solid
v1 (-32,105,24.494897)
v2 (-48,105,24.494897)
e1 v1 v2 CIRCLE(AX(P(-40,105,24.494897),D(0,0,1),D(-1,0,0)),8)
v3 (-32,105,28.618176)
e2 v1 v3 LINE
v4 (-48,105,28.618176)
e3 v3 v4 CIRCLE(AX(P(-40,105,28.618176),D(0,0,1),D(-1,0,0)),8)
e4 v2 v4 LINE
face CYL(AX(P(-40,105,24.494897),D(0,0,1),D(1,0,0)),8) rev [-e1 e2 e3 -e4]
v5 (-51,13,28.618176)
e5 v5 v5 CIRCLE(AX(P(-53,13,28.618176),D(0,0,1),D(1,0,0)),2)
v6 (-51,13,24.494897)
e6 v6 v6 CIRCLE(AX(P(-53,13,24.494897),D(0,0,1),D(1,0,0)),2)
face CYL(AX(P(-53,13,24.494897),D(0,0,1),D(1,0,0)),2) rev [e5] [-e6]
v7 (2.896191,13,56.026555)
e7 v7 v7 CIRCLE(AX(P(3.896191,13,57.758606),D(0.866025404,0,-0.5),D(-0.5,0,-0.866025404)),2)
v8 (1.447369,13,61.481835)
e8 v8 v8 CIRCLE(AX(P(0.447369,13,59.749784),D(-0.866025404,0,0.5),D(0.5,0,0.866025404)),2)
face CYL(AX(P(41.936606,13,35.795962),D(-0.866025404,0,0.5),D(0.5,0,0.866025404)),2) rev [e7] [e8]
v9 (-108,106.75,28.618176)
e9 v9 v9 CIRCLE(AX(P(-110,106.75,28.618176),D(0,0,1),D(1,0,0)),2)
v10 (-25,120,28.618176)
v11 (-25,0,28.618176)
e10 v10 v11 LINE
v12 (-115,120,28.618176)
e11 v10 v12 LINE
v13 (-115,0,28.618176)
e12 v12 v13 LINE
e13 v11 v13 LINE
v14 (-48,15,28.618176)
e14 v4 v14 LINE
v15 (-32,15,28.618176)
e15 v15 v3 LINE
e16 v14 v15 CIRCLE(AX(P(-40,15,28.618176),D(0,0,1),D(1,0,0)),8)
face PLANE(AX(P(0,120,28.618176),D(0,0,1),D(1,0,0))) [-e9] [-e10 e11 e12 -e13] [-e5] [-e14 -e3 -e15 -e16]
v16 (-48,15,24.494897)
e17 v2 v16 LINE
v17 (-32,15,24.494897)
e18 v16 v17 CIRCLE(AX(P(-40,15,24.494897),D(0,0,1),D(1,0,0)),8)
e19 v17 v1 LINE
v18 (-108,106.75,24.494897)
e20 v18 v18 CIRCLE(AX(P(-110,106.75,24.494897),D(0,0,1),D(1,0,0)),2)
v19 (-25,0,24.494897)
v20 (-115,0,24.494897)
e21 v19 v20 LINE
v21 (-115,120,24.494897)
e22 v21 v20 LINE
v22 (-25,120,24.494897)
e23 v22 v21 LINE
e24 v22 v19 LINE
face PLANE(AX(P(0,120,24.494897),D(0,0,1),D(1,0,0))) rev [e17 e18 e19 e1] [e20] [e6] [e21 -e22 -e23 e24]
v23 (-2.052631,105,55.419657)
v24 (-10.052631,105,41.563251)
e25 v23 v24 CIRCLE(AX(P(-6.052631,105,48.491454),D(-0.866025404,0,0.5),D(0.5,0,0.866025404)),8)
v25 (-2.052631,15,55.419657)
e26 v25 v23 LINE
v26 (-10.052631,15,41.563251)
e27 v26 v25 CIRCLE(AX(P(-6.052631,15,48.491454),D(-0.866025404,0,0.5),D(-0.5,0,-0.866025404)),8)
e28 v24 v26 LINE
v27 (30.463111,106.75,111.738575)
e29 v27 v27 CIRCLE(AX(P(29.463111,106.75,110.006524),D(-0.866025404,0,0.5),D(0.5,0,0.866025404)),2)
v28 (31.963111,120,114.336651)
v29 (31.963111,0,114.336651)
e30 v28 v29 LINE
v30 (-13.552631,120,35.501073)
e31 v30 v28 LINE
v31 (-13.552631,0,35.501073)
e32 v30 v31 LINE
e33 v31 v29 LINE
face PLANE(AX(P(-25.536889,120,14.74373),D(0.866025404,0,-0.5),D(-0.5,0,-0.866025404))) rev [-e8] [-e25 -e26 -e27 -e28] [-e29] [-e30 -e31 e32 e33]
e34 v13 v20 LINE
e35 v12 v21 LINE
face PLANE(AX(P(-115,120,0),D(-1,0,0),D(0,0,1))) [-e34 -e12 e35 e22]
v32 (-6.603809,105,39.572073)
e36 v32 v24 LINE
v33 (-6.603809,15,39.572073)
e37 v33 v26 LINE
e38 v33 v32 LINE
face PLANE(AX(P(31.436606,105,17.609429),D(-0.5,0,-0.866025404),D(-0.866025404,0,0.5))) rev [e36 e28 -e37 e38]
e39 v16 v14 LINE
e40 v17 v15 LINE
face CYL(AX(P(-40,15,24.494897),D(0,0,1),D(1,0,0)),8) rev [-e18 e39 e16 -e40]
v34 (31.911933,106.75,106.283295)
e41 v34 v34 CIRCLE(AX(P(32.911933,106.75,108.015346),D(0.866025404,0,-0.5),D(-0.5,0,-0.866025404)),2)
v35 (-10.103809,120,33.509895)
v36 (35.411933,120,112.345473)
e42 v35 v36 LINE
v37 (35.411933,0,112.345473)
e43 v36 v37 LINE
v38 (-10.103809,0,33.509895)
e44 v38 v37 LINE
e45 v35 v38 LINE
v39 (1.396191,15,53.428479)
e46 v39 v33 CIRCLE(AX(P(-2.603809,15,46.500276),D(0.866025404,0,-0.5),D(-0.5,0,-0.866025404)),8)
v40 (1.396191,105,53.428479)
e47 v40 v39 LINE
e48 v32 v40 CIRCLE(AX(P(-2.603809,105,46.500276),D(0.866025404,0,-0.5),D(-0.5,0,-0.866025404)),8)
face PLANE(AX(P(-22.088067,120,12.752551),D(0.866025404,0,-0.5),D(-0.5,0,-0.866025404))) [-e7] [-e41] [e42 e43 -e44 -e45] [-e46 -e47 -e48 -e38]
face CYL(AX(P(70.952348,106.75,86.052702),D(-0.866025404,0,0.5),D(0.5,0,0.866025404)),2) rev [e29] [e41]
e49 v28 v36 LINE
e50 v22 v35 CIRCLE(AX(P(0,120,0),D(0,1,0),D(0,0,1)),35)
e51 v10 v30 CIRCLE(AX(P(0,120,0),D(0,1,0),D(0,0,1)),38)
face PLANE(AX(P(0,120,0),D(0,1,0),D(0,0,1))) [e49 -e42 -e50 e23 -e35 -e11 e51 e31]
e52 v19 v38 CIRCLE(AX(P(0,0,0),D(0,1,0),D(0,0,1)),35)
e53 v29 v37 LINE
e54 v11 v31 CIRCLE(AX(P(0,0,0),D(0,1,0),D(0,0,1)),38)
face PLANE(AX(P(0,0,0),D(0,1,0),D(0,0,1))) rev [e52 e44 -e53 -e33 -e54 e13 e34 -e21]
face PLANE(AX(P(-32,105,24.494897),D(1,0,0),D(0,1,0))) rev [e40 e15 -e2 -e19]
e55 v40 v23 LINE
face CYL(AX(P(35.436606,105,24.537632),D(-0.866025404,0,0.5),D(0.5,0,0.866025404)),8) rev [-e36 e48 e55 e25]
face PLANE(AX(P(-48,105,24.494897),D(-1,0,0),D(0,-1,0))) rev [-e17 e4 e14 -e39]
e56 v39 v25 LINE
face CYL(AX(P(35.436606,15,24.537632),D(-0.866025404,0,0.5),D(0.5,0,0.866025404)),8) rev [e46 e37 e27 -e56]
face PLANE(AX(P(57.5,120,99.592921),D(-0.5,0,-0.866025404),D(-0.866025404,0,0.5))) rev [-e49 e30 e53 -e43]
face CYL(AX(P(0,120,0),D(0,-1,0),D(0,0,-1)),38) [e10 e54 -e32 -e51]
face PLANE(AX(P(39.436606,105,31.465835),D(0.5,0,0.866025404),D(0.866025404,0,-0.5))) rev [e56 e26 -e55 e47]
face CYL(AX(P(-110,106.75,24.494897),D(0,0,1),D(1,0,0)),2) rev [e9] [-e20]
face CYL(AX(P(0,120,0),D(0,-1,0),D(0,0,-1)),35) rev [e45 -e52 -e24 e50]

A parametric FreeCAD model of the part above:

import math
import FreeCAD as App
import Part
import Sketcher
Q = App.Units.Quantity

doc = App.newDocument("Part")
params = doc.addObject("Spreadsheet::Sheet", "Params")
for row, (alias, value) in enumerate([
    ("sketch1_radius", "38 mm"),
    ("sketch1_radius2", "35 mm"),
    ("sketch1_width", "90 mm"),
    ("pad1_length", "120 mm"),
    ("sketch2_radius", "8 mm"),
    ("sketch2_height", "90 mm"),
    ("sketch3_radius", "8 mm"),
    ("sketch3_height", "90 mm"),
    ("sketch4_diameter", "4 mm"),
    ("sketch5_diameter", "4 mm"),
    ("sketch6_diameter", "4 mm"),
    ("sketch7_diameter", "4 mm"),
], start=1):
    params.set(f"A{row}", alias)
    params.set(f"B{row}", "=" + value)
    params.setAlias(f"B{row}", alias)

body = doc.addObject("PartDesign::Body", "Body")

# Sketch on XZ plane
sketch1 = body.newObject("Sketcher::SketchObject", "Sketch")
sketch1.AttachmentSupport = (doc.getObject("XZ_Plane"), [""])
sketch1.MapMode = "FlatFace"
sketch1.addGeometry(Part.LineSegment(App.Vector(-115, 24.5, 0), App.Vector(-115, 28.6, 0)), False)
sketch1.addGeometry(Part.LineSegment(App.Vector(-115, 28.6, 0), App.Vector(-25, 28.6, 0)), False)
sketch1.addGeometry(Part.ArcOfCircle(Part.Circle(App.Vector(0, 0, 0), App.Vector(0, 0, 1), 38), math.radians(111), math.radians(131)), False)
sketch1.addGeometry(Part.LineSegment(App.Vector(-13.6, 35.5, 0), App.Vector(32, 114.3, 0)), False)
sketch1.addGeometry(Part.LineSegment(App.Vector(32, 114.3, 0), App.Vector(35.4, 112.3, 0)), False)
sketch1.addGeometry(Part.LineSegment(App.Vector(35.4, 112.3, 0), App.Vector(-8, 37.1, 0)), False)
sketch1.addGeometry(Part.LineSegment(App.Vector(-8, 37.1, 0), App.Vector(-10.1, 33.5, 0)), False)
sketch1.addGeometry(Part.ArcOfCircle(Part.Circle(App.Vector(0, 0, 0), App.Vector(0, 0, 1), 35), math.radians(107), math.radians(136)), False)
sketch1.addGeometry(Part.LineSegment(App.Vector(-25, 24.5, 0), App.Vector(-115, 24.5, 0)), False)
sketch1.addConstraint(Sketcher.Constraint("Coincident", 0, 2, 1, 1))
sketch1.addConstraint(Sketcher.Constraint("Coincident", 1, 2, 2, 2))
sketch1.addConstraint(Sketcher.Constraint("Coincident", 2, 1, 3, 1))
sketch1.addConstraint(Sketcher.Constraint("Coincident", 3, 2, 4, 1))
sketch1.addConstraint(Sketcher.Constraint("Coincident", 4, 2, 5, 1))
sketch1.addConstraint(Sketcher.Constraint("Coincident", 5, 2, 6, 1))
sketch1.addConstraint(Sketcher.Constraint("Coincident", 6, 2, 7, 1))
sketch1.addConstraint(Sketcher.Constraint("Coincident", 7, 2, 8, 1))
sketch1.addConstraint(Sketcher.Constraint("Coincident", 8, 2, 0, 1))
sketch1.addConstraint(Sketcher.Constraint("Vertical", 0))
sketch1.addConstraint(Sketcher.Constraint("Horizontal", 1))
sketch1.addConstraint(Sketcher.Constraint("Horizontal", 8))
sketch1.addConstraint(Sketcher.Constraint("Coincident", 2, 3, -1, 1))
sketch1.addConstraint(Sketcher.Constraint("Coincident", 7, 3, -1, 1))
sketch1.addConstraint(Sketcher.Constraint("Perpendicular", 3, 4))
sketch1.addConstraint(Sketcher.Constraint("Perpendicular", 4, 5))
sketch1.addConstraint(Sketcher.Constraint("Parallel", 5, 6))
sketch1.addConstraint(Sketcher.Constraint("Vertical", 1, 2, 7, 2))
sketch1.addConstraint(Sketcher.Constraint("Radius", 2, Q("38 mm")))
sketch1.addConstraint(Sketcher.Constraint("Radius", 7, Q("35 mm")))
sketch1.addConstraint(Sketcher.Constraint("DistanceX", 1, 1, 1, 2, Q("90 mm")))
sketch1.addConstraint(Sketcher.Constraint("Angle", 3, Q("60 deg")))
sketch1.addConstraint(Sketcher.Constraint("DistanceX", 0, 2, -1, 1, Q("115 mm")))
sketch1.addConstraint(Sketcher.Constraint("DistanceY", 2, 1, 4, 2, Q("76.8444 mm")))
sketch1.addConstraint(Sketcher.Constraint("DistanceY", 1, 2, 5, 2, Q("8.529402 mm")))
sketch1.addConstraint(Sketcher.Constraint("Distance", 5, Q("86.83105 mm")))
sketch1.addConstraint(Sketcher.Constraint("DistanceX", -1, 1, 3, 2, Q("31.963111 mm")))
sketch1.setExpression("Constraints[18]", "Params.sketch1_radius")
sketch1.setExpression("Constraints[19]", "Params.sketch1_radius2")
sketch1.setExpression("Constraints[20]", "Params.sketch1_width")
pad1 = body.newObject("PartDesign::Pad", "Pad")
pad1.Profile = sketch1
pad1.setExpression("Length", "Params.pad1_length")
pad1.Reversed = True

# Sketch on XY plane
sketch2 = body.newObject("Sketcher::SketchObject", "Sketch001")
sketch2.AttachmentSupport = (doc.getObject("XY_Plane"), [""])
sketch2.MapMode = "FlatFace"
sketch2.AttachmentOffset = App.Placement(App.Vector(0, 0, 28.618176), App.Rotation())
sketch2.addGeometry(Part.LineSegment(App.Vector(-48, 105, 0), App.Vector(-48, 15, 0)), False)
sketch2.addGeometry(Part.ArcOfCircle(Part.Circle(App.Vector(-40, 15, 0), App.Vector(0, 0, 1), 8), math.radians(180), math.radians(360)), False)
sketch2.addGeometry(Part.LineSegment(App.Vector(-32, 15, 0), App.Vector(-32, 105, 0)), False)
sketch2.addGeometry(Part.ArcOfCircle(Part.Circle(App.Vector(-40, 105, 0), App.Vector(0, 0, 1), 8), math.radians(0), math.radians(180)), False)
sketch2.addConstraint(Sketcher.Constraint("Tangent", 0, 2, 1, 1))
sketch2.addConstraint(Sketcher.Constraint("Tangent", 1, 2, 2, 1))
sketch2.addConstraint(Sketcher.Constraint("Tangent", 2, 2, 3, 1))
sketch2.addConstraint(Sketcher.Constraint("Tangent", 3, 2, 0, 1))
sketch2.addConstraint(Sketcher.Constraint("Vertical", 0))
sketch2.addConstraint(Sketcher.Constraint("Vertical", 2))
sketch2.addConstraint(Sketcher.Constraint("Radius", 1, Q("8 mm")))
sketch2.addConstraint(Sketcher.Constraint("DistanceY", 0, 2, 0, 1, Q("90 mm")))
sketch2.addConstraint(Sketcher.Constraint("DistanceX", 1, 3, -1, 1, Q("40 mm")))
sketch2.addConstraint(Sketcher.Constraint("DistanceY", -1, 1, 1, 3, Q("15 mm")))
sketch2.setExpression("Constraints[6]", "Params.sketch2_radius")
sketch2.setExpression("Constraints[7]", "Params.sketch2_height")
pocket1 = body.newObject("PartDesign::Pocket", "Pocket")
pocket1.Profile = sketch2
pocket1.Type = "ThroughAll"

# Sketch on an angled plane
sketch3 = body.newObject("Sketcher::SketchObject", "Sketch002")
sketch3.Placement = App.Placement(App.Vector(-25.536889, 0, 14.74373), App.Rotation(App.Vector(0.5, 0, 0.866025404), App.Vector(0, 1, 0), App.Vector(-0.866025404, 0, 0.5), "ZXY"))
sketch3.addGeometry(Part.LineSegment(App.Vector(47, 15, 0), App.Vector(47, 105, 0)), False)
sketch3.addGeometry(Part.ArcOfCircle(Part.Circle(App.Vector(39, 105, 0), App.Vector(0, 0, 1), 8), math.radians(0), math.radians(180)), False)
sketch3.addGeometry(Part.LineSegment(App.Vector(31, 105, 0), App.Vector(31, 15, 0)), False)
sketch3.addGeometry(Part.ArcOfCircle(Part.Circle(App.Vector(39, 15, 0), App.Vector(0, 0, 1), 8), math.radians(180), math.radians(360)), False)
sketch3.addConstraint(Sketcher.Constraint("Tangent", 0, 2, 1, 1))
sketch3.addConstraint(Sketcher.Constraint("Tangent", 1, 2, 2, 1))
sketch3.addConstraint(Sketcher.Constraint("Tangent", 2, 2, 3, 1))
sketch3.addConstraint(Sketcher.Constraint("Tangent", 3, 2, 0, 1))
sketch3.addConstraint(Sketcher.Constraint("Vertical", 0))
sketch3.addConstraint(Sketcher.Constraint("Vertical", 2))
sketch3.addConstraint(Sketcher.Constraint("Radius", 1, Q("8 mm")))
sketch3.addConstraint(Sketcher.Constraint("DistanceY", 0, 1, 0, 2, Q("90 mm")))
sketch3.addConstraint(Sketcher.Constraint("DistanceY", -1, 1, 1, 3, Q("105 mm")))
sketch3.addConstraint(Sketcher.Constraint("DistanceX", -1, 1, 1, 3, Q("38.968516 mm")))
sketch3.setExpression("Constraints[6]", "Params.sketch3_radius")
sketch3.setExpression("Constraints[7]", "Params.sketch3_height")
pocket2 = body.newObject("PartDesign::Pocket", "Pocket001")
pocket2.Profile = sketch3
pocket2.Type = "ThroughAll"

# Sketch on XY plane
sketch4 = body.newObject("Sketcher::SketchObject", "Sketch003")
sketch4.AttachmentSupport = (doc.getObject("XY_Plane"), [""])
sketch4.MapMode = "FlatFace"
sketch4.AttachmentOffset = App.Placement(App.Vector(0, 0, 28.618176), App.Rotation())
sketch4.addGeometry(Part.Circle(App.Vector(-110, 106.8, 0), App.Vector(0, 0, 1), 2), False)
sketch4.addConstraint(Sketcher.Constraint("Diameter", 0, Q("4 mm")))
sketch4.addConstraint(Sketcher.Constraint("DistanceX", 0, 3, -1, 1, Q("110 mm")))
sketch4.addConstraint(Sketcher.Constraint("DistanceY", -1, 1, 0, 3, Q("106.75 mm")))
sketch4.setExpression("Constraints[0]", "Params.sketch4_diameter")
pocket3 = body.newObject("PartDesign::Pocket", "Pocket002")
pocket3.Profile = sketch4
pocket3.Type = "ThroughAll"

# Sketch on an angled plane
sketch5 = body.newObject("Sketcher::SketchObject", "Sketch004")
sketch5.Placement = App.Placement(App.Vector(-25.536889, 0, 14.74373), App.Rotation(App.Vector(0.5, 0, 0.866025404), App.Vector(0, 1, 0), App.Vector(-0.866025404, 0, 0.5), "ZXY"))
sketch5.addGeometry(Part.Circle(App.Vector(110, 106.8, 0), App.Vector(0, 0, 1), 2), False)
sketch5.addConstraint(Sketcher.Constraint("Diameter", 0, Q("4 mm")))
sketch5.addConstraint(Sketcher.Constraint("DistanceX", -1, 1, 0, 3, Q("110 mm")))
sketch5.addConstraint(Sketcher.Constraint("DistanceY", -1, 1, 0, 3, Q("106.75 mm")))
sketch5.setExpression("Constraints[0]", "Params.sketch5_diameter")
pocket4 = body.newObject("PartDesign::Pocket", "Pocket003")
pocket4.Profile = sketch5
pocket4.Type = "ThroughAll"

# Sketch on XY plane
sketch6 = body.newObject("Sketcher::SketchObject", "Sketch005")
sketch6.AttachmentSupport = (doc.getObject("XY_Plane"), [""])
sketch6.MapMode = "FlatFace"
sketch6.AttachmentOffset = App.Placement(App.Vector(0, 0, 28.618176), App.Rotation())
sketch6.addGeometry(Part.Circle(App.Vector(-53, 13, 0), App.Vector(0, 0, 1), 2), False)
sketch6.addConstraint(Sketcher.Constraint("Diameter", 0, Q("4 mm")))
sketch6.addConstraint(Sketcher.Constraint("DistanceX", 0, 3, -1, 1, Q("53 mm")))
sketch6.addConstraint(Sketcher.Constraint("DistanceY", -1, 1, 0, 3, Q("13 mm")))
sketch6.setExpression("Constraints[0]", "Params.sketch6_diameter")
pocket5 = body.newObject("PartDesign::Pocket", "Pocket004")
pocket5.Profile = sketch6
pocket5.Type = "ThroughAll"

# Sketch on an angled plane
sketch7 = body.newObject("Sketcher::SketchObject", "Sketch006")
sketch7.Placement = App.Placement(App.Vector(-25.536889, 0, 14.74373), App.Rotation(App.Vector(0.5, 0, 0.866025404), App.Vector(0, 1, 0), App.Vector(-0.866025404, 0, 0.5), "ZXY"))
sketch7.addGeometry(Part.Circle(App.Vector(52, 13, 0), App.Vector(0, 0, 1), 2), False)
sketch7.addConstraint(Sketcher.Constraint("Diameter", 0, Q("4 mm")))
sketch7.addConstraint(Sketcher.Constraint("DistanceY", -1, 1, 0, 3, Q("13 mm")))
sketch7.addConstraint(Sketcher.Constraint("DistanceX", -1, 1, 0, 3, Q("51.968516 mm")))
sketch7.setExpression("Constraints[0]", "Params.sketch7_diameter")
pocket6 = body.newObject("PartDesign::Pocket", "Pocket005")
pocket6.Profile = sketch7
pocket6.Type = "ThroughAll"

doc.recompute()
